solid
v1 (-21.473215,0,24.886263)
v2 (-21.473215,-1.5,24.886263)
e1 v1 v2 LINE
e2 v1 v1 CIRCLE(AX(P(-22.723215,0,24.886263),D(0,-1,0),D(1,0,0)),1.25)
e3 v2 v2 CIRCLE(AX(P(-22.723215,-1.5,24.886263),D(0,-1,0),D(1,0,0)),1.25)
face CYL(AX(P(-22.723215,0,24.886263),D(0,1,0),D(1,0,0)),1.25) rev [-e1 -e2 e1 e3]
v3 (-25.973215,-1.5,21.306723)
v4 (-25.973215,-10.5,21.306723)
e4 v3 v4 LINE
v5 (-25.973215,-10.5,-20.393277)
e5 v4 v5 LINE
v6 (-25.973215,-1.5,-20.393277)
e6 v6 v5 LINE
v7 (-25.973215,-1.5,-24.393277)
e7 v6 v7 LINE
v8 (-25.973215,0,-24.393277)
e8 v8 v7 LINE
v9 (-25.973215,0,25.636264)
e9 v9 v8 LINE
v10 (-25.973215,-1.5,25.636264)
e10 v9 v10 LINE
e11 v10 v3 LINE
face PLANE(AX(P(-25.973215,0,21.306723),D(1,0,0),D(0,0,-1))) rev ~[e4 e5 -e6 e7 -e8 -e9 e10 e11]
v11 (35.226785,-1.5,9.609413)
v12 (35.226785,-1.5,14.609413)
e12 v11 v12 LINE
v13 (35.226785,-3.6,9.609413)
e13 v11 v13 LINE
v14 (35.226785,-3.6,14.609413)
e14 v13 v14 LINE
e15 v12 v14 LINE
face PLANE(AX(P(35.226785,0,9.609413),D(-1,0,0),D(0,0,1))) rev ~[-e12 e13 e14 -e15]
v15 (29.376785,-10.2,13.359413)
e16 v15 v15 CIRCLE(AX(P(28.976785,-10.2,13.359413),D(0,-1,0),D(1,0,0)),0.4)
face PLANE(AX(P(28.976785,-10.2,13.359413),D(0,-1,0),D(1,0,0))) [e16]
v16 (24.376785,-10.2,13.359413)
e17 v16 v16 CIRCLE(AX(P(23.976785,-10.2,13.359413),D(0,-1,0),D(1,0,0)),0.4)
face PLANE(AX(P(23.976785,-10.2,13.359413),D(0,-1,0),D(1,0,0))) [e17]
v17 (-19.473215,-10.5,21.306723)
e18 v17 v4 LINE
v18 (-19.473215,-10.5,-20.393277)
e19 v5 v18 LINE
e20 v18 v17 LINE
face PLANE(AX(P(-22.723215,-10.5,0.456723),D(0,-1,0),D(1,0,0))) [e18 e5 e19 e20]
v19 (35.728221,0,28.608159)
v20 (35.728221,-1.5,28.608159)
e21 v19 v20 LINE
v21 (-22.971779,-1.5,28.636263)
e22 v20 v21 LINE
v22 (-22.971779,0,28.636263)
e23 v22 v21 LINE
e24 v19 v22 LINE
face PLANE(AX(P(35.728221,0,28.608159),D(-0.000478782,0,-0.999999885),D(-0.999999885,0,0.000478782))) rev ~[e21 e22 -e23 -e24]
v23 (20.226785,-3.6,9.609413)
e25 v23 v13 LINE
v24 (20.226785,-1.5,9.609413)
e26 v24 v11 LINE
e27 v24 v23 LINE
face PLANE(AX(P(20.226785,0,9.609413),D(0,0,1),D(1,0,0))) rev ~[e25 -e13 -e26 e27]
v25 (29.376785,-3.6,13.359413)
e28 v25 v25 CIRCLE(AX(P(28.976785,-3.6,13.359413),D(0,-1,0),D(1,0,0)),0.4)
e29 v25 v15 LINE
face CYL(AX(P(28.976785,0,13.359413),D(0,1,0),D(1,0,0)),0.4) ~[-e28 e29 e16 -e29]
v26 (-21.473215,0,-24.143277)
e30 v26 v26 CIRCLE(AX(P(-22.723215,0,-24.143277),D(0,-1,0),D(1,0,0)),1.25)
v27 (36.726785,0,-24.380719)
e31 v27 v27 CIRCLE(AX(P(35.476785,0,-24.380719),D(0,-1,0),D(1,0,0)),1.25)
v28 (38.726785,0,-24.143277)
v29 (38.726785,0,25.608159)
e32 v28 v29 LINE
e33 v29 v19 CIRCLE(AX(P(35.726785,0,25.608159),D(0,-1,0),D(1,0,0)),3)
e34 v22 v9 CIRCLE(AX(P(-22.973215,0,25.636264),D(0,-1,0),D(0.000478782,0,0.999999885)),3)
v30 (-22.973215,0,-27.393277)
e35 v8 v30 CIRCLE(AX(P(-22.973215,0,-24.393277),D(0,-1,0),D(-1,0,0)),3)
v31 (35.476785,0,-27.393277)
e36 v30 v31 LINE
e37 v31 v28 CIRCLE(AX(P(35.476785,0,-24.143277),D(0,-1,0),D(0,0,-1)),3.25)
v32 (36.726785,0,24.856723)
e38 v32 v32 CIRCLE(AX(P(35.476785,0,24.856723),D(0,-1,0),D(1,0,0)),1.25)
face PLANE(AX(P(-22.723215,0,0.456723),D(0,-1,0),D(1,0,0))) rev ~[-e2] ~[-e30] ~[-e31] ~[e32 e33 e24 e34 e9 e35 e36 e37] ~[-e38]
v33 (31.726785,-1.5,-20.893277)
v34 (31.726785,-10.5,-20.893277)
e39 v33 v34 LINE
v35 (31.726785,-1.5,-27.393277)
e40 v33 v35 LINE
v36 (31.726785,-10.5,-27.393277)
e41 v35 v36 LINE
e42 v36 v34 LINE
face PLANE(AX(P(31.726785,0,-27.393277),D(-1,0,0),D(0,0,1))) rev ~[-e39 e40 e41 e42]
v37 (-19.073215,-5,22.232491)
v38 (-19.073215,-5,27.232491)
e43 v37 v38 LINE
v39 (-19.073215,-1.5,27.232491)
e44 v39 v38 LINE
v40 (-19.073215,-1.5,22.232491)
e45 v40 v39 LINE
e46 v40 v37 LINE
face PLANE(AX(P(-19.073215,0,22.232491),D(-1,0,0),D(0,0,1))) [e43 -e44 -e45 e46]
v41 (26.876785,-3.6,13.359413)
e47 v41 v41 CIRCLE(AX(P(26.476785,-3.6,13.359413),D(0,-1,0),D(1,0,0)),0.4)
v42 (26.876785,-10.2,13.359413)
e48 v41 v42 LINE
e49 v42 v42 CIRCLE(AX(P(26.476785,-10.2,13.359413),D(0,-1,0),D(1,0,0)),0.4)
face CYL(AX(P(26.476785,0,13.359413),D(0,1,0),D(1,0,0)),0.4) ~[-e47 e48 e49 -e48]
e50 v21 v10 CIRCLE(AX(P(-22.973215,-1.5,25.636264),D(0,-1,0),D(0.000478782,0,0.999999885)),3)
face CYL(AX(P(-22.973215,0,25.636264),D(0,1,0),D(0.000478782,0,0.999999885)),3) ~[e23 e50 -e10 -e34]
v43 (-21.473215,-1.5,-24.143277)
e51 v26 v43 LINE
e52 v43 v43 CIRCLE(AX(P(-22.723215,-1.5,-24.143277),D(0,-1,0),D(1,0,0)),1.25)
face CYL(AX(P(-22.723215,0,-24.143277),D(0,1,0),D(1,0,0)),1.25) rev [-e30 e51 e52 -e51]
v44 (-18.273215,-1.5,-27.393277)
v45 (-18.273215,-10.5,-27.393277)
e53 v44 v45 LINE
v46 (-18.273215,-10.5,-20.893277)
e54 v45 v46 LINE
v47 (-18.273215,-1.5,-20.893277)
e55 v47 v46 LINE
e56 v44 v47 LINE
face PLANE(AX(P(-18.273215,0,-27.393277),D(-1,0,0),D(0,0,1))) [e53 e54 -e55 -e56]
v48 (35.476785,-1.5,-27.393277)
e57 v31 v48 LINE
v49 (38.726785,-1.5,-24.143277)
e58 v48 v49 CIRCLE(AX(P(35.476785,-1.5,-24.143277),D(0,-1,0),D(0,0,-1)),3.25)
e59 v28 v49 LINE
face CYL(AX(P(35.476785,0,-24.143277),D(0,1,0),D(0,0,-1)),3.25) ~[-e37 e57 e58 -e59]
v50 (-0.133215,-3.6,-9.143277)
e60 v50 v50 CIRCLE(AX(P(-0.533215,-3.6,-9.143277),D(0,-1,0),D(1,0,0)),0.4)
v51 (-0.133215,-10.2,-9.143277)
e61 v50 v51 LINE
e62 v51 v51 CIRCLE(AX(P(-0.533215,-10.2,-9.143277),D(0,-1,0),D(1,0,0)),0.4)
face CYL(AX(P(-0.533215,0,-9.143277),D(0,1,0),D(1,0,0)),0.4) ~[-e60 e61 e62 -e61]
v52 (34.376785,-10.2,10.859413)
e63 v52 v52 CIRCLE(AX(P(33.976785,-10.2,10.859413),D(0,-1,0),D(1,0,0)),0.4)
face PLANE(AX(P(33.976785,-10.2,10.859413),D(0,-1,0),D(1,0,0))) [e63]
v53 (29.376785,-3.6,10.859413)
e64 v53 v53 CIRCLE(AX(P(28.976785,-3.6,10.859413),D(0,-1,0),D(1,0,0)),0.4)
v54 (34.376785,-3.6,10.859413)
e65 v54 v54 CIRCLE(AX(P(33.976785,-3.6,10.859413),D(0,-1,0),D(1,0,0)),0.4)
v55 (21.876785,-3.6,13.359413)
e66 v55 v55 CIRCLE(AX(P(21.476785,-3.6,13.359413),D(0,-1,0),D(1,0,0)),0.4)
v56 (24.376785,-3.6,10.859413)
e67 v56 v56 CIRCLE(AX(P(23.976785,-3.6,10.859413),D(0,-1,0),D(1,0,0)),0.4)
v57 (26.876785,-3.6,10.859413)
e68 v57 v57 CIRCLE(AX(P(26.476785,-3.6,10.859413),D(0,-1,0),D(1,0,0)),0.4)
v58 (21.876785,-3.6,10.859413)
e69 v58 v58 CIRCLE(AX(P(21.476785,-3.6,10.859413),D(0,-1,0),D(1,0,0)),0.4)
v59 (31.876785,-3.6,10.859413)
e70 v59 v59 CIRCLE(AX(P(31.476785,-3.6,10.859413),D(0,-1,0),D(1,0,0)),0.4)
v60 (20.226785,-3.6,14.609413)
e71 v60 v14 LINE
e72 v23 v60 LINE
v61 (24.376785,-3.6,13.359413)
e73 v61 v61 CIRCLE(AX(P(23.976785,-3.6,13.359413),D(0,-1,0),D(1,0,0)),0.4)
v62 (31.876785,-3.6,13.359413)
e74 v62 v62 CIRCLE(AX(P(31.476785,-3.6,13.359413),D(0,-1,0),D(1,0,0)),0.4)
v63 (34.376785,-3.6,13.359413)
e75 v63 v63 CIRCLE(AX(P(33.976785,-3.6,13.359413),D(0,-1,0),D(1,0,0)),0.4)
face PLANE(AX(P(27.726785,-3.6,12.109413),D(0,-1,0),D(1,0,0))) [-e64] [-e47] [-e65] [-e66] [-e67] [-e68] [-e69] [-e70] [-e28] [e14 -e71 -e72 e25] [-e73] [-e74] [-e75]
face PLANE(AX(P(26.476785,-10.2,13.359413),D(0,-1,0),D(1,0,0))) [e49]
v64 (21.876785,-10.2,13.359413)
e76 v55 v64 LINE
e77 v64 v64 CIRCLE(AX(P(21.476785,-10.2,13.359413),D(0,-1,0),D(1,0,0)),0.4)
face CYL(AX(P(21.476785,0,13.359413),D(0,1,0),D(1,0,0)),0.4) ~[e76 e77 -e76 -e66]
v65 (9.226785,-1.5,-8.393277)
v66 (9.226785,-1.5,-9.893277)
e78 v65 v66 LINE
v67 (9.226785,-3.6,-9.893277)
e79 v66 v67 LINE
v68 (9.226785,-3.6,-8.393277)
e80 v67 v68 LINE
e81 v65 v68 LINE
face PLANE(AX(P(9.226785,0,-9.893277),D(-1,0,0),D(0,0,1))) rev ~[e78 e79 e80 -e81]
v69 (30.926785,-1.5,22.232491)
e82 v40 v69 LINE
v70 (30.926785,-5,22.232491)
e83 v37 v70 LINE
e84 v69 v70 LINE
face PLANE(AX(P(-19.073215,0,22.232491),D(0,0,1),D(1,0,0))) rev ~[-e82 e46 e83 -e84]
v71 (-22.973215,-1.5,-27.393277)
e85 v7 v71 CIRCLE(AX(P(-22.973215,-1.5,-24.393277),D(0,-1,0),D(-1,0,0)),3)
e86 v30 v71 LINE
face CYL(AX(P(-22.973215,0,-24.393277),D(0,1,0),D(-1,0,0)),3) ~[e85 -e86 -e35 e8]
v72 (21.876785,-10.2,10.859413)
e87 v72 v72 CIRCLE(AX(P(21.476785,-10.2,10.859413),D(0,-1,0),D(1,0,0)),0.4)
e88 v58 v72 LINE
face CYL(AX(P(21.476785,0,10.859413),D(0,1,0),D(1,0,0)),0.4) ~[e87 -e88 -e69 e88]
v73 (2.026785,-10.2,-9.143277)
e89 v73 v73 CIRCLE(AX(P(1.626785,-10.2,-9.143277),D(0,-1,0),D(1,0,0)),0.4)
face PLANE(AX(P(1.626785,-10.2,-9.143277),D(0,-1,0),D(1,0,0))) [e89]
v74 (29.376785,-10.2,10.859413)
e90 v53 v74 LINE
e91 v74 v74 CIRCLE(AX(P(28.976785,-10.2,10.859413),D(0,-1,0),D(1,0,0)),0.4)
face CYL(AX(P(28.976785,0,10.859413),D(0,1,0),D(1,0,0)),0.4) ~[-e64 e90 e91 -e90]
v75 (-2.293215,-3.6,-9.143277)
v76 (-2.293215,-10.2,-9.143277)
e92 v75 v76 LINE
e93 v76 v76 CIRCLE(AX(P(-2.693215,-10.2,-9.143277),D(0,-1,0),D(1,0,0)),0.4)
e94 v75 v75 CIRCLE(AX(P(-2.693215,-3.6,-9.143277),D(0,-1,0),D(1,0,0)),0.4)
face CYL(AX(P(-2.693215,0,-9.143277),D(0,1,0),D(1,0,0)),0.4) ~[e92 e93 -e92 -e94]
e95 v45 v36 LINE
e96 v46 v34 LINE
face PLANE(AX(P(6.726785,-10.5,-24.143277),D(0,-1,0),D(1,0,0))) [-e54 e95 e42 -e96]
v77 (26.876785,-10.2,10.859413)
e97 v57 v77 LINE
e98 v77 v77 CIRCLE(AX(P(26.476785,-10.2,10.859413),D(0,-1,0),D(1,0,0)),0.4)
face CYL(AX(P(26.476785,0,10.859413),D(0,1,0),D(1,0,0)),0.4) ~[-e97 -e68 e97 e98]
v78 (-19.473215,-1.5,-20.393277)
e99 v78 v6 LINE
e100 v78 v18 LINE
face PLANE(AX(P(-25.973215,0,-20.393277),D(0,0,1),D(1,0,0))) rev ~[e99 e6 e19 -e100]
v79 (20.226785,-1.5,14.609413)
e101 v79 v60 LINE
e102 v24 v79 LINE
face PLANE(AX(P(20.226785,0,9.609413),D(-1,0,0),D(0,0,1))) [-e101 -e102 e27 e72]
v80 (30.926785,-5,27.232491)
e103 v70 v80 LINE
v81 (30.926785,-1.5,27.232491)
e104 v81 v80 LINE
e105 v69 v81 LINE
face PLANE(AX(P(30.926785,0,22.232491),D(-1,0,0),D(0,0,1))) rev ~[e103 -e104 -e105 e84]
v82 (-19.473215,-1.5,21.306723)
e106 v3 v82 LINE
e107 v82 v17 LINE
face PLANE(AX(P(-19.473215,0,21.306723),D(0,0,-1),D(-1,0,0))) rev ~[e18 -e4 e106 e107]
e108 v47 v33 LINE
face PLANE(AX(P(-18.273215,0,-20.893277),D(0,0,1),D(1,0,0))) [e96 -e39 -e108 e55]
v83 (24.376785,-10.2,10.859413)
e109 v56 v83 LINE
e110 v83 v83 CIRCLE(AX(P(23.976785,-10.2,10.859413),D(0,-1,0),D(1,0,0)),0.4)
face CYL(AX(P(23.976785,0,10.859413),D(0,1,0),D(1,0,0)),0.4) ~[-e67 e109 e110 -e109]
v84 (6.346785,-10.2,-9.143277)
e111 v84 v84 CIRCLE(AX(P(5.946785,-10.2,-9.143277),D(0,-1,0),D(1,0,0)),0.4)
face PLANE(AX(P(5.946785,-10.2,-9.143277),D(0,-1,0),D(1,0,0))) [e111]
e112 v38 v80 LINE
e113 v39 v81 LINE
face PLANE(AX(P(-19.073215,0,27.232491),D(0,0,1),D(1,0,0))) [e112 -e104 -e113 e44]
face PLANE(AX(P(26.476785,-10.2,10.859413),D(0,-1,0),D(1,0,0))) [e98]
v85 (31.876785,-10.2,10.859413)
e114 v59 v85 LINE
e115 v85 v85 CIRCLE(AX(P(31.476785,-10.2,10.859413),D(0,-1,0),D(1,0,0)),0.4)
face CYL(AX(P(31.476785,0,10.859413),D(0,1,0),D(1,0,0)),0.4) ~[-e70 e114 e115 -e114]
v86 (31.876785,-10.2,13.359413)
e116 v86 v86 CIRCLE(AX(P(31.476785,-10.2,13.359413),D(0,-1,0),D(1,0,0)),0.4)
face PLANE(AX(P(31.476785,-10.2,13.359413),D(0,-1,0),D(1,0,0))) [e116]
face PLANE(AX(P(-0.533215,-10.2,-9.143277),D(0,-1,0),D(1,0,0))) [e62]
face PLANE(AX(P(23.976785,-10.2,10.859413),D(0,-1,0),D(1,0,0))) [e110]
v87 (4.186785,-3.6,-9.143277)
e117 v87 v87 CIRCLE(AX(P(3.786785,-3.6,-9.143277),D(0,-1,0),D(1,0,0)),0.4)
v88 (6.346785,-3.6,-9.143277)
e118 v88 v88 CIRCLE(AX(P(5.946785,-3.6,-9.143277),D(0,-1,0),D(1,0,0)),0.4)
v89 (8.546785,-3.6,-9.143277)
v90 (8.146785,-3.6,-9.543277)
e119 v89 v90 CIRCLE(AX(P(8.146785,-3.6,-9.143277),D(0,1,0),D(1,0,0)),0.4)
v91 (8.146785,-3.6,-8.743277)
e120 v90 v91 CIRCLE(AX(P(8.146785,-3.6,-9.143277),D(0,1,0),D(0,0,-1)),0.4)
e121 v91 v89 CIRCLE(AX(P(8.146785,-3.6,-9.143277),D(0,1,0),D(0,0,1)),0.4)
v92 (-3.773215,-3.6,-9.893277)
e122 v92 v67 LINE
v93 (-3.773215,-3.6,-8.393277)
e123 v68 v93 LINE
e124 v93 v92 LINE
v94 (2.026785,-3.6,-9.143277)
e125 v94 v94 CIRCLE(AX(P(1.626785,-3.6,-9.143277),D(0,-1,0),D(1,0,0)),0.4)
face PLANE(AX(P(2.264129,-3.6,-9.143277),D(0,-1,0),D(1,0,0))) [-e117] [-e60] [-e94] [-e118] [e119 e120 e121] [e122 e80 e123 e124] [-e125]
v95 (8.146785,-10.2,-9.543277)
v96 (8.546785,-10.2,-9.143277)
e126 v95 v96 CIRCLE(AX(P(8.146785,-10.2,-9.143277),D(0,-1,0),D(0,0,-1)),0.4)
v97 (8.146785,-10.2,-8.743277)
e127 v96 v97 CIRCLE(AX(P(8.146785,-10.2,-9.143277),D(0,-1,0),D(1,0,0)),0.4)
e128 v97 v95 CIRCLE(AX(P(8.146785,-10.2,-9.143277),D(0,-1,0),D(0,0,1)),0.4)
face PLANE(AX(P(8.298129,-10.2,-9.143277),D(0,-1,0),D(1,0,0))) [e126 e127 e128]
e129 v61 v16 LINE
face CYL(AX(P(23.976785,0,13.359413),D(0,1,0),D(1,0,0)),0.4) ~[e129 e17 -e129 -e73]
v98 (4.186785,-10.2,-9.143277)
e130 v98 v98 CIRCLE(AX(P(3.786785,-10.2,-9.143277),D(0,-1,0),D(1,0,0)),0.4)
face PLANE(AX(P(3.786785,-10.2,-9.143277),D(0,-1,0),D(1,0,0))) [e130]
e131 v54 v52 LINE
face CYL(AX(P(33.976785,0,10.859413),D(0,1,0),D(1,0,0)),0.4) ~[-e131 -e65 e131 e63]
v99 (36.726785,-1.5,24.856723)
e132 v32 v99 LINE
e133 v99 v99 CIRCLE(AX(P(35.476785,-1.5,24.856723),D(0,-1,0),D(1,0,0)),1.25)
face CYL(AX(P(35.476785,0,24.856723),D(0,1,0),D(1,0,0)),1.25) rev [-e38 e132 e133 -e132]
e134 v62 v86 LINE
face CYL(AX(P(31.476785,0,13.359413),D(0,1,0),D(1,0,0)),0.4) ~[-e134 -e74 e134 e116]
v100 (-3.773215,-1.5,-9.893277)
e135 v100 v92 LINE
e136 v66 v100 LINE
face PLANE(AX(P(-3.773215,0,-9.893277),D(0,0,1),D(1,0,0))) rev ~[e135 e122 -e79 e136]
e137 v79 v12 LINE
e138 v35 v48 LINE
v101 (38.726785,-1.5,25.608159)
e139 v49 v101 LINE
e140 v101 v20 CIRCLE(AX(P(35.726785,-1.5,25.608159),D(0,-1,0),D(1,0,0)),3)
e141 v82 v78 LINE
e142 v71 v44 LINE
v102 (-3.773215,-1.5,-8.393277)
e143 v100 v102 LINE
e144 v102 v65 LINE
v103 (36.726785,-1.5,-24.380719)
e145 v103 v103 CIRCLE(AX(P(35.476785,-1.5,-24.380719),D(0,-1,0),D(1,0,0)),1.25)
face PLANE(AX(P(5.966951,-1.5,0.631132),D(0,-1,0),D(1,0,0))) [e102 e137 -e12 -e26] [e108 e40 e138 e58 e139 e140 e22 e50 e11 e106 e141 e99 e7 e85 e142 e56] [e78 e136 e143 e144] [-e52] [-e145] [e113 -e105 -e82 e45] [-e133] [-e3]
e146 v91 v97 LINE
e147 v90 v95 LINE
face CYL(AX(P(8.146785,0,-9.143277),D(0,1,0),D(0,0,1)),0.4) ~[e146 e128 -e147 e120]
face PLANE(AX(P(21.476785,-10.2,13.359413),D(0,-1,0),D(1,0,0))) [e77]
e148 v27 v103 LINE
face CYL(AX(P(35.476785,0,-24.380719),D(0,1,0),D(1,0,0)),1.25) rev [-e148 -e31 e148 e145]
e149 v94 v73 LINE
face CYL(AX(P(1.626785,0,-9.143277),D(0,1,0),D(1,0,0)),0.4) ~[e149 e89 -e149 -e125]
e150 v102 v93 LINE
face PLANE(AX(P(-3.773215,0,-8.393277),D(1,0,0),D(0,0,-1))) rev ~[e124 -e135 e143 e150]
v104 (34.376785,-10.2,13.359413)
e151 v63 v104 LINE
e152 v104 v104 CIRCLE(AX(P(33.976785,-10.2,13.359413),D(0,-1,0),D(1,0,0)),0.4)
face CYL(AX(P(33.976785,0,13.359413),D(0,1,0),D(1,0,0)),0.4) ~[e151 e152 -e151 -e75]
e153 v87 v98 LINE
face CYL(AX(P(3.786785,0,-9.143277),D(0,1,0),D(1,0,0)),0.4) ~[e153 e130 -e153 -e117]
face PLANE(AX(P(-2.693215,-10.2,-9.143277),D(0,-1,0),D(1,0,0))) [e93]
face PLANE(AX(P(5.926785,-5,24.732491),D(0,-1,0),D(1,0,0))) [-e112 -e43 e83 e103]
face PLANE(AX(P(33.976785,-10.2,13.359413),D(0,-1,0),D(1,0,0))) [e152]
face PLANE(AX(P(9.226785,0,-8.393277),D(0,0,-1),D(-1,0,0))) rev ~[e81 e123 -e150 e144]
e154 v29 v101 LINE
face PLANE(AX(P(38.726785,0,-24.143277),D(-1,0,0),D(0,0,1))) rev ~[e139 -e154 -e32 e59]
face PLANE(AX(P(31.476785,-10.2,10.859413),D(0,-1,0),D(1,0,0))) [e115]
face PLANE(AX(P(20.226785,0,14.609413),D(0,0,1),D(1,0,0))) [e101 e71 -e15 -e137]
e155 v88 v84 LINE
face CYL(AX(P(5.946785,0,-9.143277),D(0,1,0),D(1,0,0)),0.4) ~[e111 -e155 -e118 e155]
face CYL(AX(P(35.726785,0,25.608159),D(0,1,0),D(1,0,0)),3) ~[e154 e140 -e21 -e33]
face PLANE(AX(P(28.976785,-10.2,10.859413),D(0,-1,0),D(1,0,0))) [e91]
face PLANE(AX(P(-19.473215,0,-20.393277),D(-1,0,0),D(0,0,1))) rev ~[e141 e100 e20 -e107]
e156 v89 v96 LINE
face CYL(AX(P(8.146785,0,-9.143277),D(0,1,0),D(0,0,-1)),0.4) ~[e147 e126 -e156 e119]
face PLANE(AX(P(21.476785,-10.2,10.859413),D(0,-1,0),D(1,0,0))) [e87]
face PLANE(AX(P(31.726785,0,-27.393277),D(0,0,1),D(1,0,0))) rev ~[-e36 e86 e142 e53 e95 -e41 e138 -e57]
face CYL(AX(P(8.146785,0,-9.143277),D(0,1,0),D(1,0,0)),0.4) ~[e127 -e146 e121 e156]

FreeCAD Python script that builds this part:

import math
import FreeCAD as App
import Part
import Sketcher
Q = App.Units.Quantity

doc = App.newDocument("Part")
body = doc.addObject("PartDesign::Body", "Body")

# Sketch on XZ plane
sketch1 = doc.addObject("Sketcher::SketchObject", "Sketch")
body.addObject(sketch1)
sketch1.AttachmentSupport = (doc.XZ_Plane, [""])
sketch1.MapMode = "FlatFace"
sketch1.addGeometry([
    Part.ArcOfCircle(Part.Circle(App.Vector(35.7, 25.6, 0), App.Vector(0, 0, 1), 3), math.radians(0), math.radians(90)),  # 0
    Part.LineSegment(App.Vector(35.7, 28.6, 0), App.Vector(-23, 28.6, 0)),  # 1
    Part.ArcOfCircle(Part.Circle(App.Vector(-23, 25.6, 0), App.Vector(0, 0, 1), 3), math.radians(90), math.radians(180)),  # 2
    Part.LineSegment(App.Vector(-26, 25.6, 0), App.Vector(-26, 21.3, 0)),  # 3
    Part.LineSegment(App.Vector(-26, 21.3, 0), App.Vector(-19.5, 21.3, 0)),  # 4
    Part.LineSegment(App.Vector(-19.5, 21.3, 0), App.Vector(-19.5, -20.4, 0)),  # 5
    Part.LineSegment(App.Vector(-19.5, -20.4, 0), App.Vector(-26, -20.4, 0)),  # 6
    Part.LineSegment(App.Vector(-26, -20.4, 0), App.Vector(-26, -24.4, 0)),  # 7
    Part.ArcOfCircle(Part.Circle(App.Vector(-23, -24.4, 0), App.Vector(0, 0, 1), 3), math.radians(180), math.radians(270)),  # 8
    Part.LineSegment(App.Vector(-23, -27.4, 0), App.Vector(-18.3, -27.4, 0)),  # 9
    Part.LineSegment(App.Vector(-18.3, -27.4, 0), App.Vector(-18.3, -20.9, 0)),  # 10
    Part.LineSegment(App.Vector(-18.3, -20.9, 0), App.Vector(31.7, -20.9, 0)),  # 11
    Part.LineSegment(App.Vector(31.7, -20.9, 0), App.Vector(31.7, -27.4, 0)),  # 12
    Part.LineSegment(App.Vector(31.7, -27.4, 0), App.Vector(35.5, -27.4, 0)),  # 13
    Part.ArcOfCircle(Part.Circle(App.Vector(35.5, -24.1, 0), App.Vector(0, 0, 1), 3.2), math.radians(-90), math.radians(0)),  # 14
    Part.LineSegment(App.Vector(38.7, -24.1, 0), App.Vector(38.7, 25.6, 0)),  # 15
    Part.Circle(App.Vector(-22.7, -24.1, 0), App.Vector(0, 0, 1), 1.2),  # 16
    Part.LineSegment(App.Vector(9.2, -9.9, 0), App.Vector(-3.8, -9.9, 0)),  # 17
    Part.LineSegment(App.Vector(-3.8, -9.9, 0), App.Vector(-3.8, -8.4, 0)),  # 18
    Part.LineSegment(App.Vector(-3.8, -8.4, 0), App.Vector(9.2, -8.4, 0)),  # 19
    Part.LineSegment(App.Vector(9.2, -8.4, 0), App.Vector(9.2, -9.9, 0)),  # 20
    Part.Circle(App.Vector(35.5, -24.4, 0), App.Vector(0, 0, 1), 1.2),  # 21
    Part.Circle(App.Vector(-22.7, 24.9, 0), App.Vector(0, 0, 1), 1.2),  # 22
    Part.LineSegment(App.Vector(30.9, 22.2, 0), App.Vector(-19.1, 22.2, 0)),  # 23
    Part.LineSegment(App.Vector(-19.1, 22.2, 0), App.Vector(-19.1, 27.2, 0)),  # 24
    Part.LineSegment(App.Vector(-19.1, 27.2, 0), App.Vector(30.9, 27.2, 0)),  # 25
    Part.LineSegment(App.Vector(30.9, 27.2, 0), App.Vector(30.9, 22.2, 0)),  # 26
    Part.LineSegment(App.Vector(35.2, 9.6, 0), App.Vector(20.2, 9.6, 0)),  # 27
    Part.LineSegment(App.Vector(20.2, 9.6, 0), App.Vector(20.2, 14.6, 0)),  # 28
    Part.LineSegment(App.Vector(20.2, 14.6, 0), App.Vector(35.2, 14.6, 0)),  # 29
    Part.LineSegment(App.Vector(35.2, 14.6, 0), App.Vector(35.2, 9.6, 0)),  # 30
    Part.Circle(App.Vector(35.5, 24.9, 0), App.Vector(0, 0, 1), 1.2),  # 31
], False)
sketch1.addConstraint([
    Sketcher.Constraint("Tangent", 0, 2, 1, 1),
    Sketcher.Constraint("Tangent", 1, 2, 2, 1),
    Sketcher.Constraint("Tangent", 2, 2, 3, 1),
    Sketcher.Constraint("Coincident", 3, 2, 4, 1),
    Sketcher.Constraint("Coincident", 4, 2, 5, 1),
    Sketcher.Constraint("Coincident", 5, 2, 6, 1),
    Sketcher.Constraint("Coincident", 6, 2, 7, 1),
    Sketcher.Constraint("Tangent", 7, 2, 8, 1),
    Sketcher.Constraint("Tangent", 8, 2, 9, 1),
    Sketcher.Constraint("Coincident", 9, 2, 10, 1),
    Sketcher.Constraint("Coincident", 10, 2, 11, 1),
    Sketcher.Constraint("Coincident", 11, 2, 12, 1),
    Sketcher.Constraint("Coincident", 12, 2, 13, 1),
    Sketcher.Constraint("Tangent", 13, 2, 14, 1),
    Sketcher.Constraint("Tangent", 14, 2, 15, 1),
    Sketcher.Constraint("Tangent", 15, 2, 0, 1),
    Sketcher.Constraint("Coincident", 17, 2, 18, 1),
    Sketcher.Constraint("Coincident", 18, 2, 19, 1),
    Sketcher.Constraint("Coincident", 19, 2, 20, 1),
    Sketcher.Constraint("Coincident", 20, 2, 17, 1),
    Sketcher.Constraint("Coincident", 23, 2, 24, 1),
    Sketcher.Constraint("Coincident", 24, 2, 25, 1),
    Sketcher.Constraint("Coincident", 25, 2, 26, 1),
    Sketcher.Constraint("Coincident", 26, 2, 23, 1),
    Sketcher.Constraint("Coincident", 27, 2, 28, 1),
    Sketcher.Constraint("Coincident", 28, 2, 29, 1),
    Sketcher.Constraint("Coincident", 29, 2, 30, 1),
    Sketcher.Constraint("Coincident", 30, 2, 27, 1),
    Sketcher.Constraint("Vertical", 3),
    Sketcher.Constraint("Horizontal", 4),
    Sketcher.Constraint("Vertical", 5),
    Sketcher.Constraint("Horizontal", 6),
    Sketcher.Constraint("Vertical", 7),
    Sketcher.Constraint("Horizontal", 9),
    Sketcher.Constraint("Vertical", 10),
    Sketcher.Constraint("Horizontal", 11),
    Sketcher.Constraint("Vertical", 12),
    Sketcher.Constraint("Horizontal", 13),
    Sketcher.Constraint("Vertical", 15),
    Sketcher.Constraint("Horizontal", 17),
    Sketcher.Constraint("Vertical", 18),
    Sketcher.Constraint("Horizontal", 19),
    Sketcher.Constraint("Vertical", 20),
    Sketcher.Constraint("Horizontal", 23),
    Sketcher.Constraint("Vertical", 24),
    Sketcher.Constraint("Horizontal", 25),
    Sketcher.Constraint("Vertical", 26),
    Sketcher.Constraint("Horizontal", 27),
    Sketcher.Constraint("Vertical", 28),
    Sketcher.Constraint("Horizontal", 29),
    Sketcher.Constraint("Vertical", 30),
    Sketcher.Constraint("Equal", 0, 2),
    Sketcher.Constraint("Equal", 2, 8),
    Sketcher.Constraint("Equal", 16, 21),
    Sketcher.Constraint("Equal", 21, 22),
    Sketcher.Constraint("Equal", 22, 31),
    Sketcher.Constraint("Horizontal", 14, 3, 16, 3),
    Sketcher.Constraint("Horizontal", 9, 2, 12, 2),
    Sketcher.Constraint("Vertical", 2, 3, 8, 3),
    Sketcher.Constraint("Vertical", 14, 3, 21, 3),
    Sketcher.Constraint("Vertical", 16, 3, 22, 3),
    Sketcher.Constraint("Vertical", 21, 3, 31, 3),
    Sketcher.Constraint("Equal", 11, 23),
    Sketcher.Constraint("Equal", 6, 10),
    Sketcher.Constraint("Equal", 26, 28),
    Sketcher.Constraint("Radius", 0, Q("3 mm")),
    Sketcher.Constraint("Diameter", 16, Q("2.5 mm")),
    Sketcher.Constraint("DistanceX", 11, 1, 11, 2, Q("50 mm")),
    Sketcher.Constraint("DistanceX", 17, 2, 17, 1, Q("13 mm")),
    Sketcher.Constraint("DistanceX", 27, 2, 27, 1, Q("15 mm")),
    Sketcher.Constraint("DistanceY", 7, 2, 7, 1, Q("4 mm")),
    Sketcher.Constraint("DistanceY", 24, 1, 24, 2, Q("5 mm")),
    Sketcher.Constraint("Radius", 14, Q("3.25 mm")),
    Sketcher.Constraint("DistanceX", 4, 1, 4, 2, Q("6.5 mm")),
    Sketcher.Constraint("DistanceX", 9, 1, 9, 2, Q("4.7 mm")),
    Sketcher.Constraint("DistanceY", 5, 2, 5, 1, Q("41.7 mm")),
    Sketcher.Constraint("DistanceY", 18, 1, 18, 2, Q("1.5 mm")),
    Sketcher.Constraint("DistanceY", 14, 3, 31, 3, Q("49 mm")),
    Sketcher.Constraint("DistanceX", 11, 2, 0, 3, Q("4 mm")),
    Sketcher.Constraint("DistanceY", 10, 2, 17, 2, Q("11 mm")),
    Sketcher.Constraint("DistanceX", 19, 2, 27, 2, Q("11 mm")),
    Sketcher.Constraint("DistanceX", 16, 3, 14, 3, Q("58.2 mm")),
    Sketcher.Constraint("DistanceX", 10, 2, 17, 2, Q("14.5 mm")),
    Sketcher.Constraint("DistanceX", 4, 2, 23, 2, Q("0.4 mm")),
    Sketcher.Constraint("DistanceY", 22, 3, 2, 3, Q("0.75 mm")),
    Sketcher.Constraint("DistanceY", 3, 2, 3, 1, Q("4.32954 mm")),
    Sketcher.Constraint("DistanceY", 15, 1, 15, 2, Q("49.751436 mm")),
    Sketcher.Constraint("DistanceY", -1, 1, 0, 3, Q("25.608159 mm")),
    Sketcher.Constraint("DistanceY", 21, 3, -1, 1, Q("24.380719 mm")),
    Sketcher.Constraint("DistanceX", -1, 1, 0, 2, Q("35.728221 mm")),
    Sketcher.Constraint("DistanceY", -1, 1, 23, 2, Q("22.232491 mm")),
    Sketcher.Constraint("DistanceY", 19, 2, 27, 2, Q("18.00269 mm")),
])
pad1 = doc.addObject("PartDesign::Pad", "Pad")
body.addObject(pad1)
pad1.Profile = sketch1
pad1.Length = 1.5

# Sketch on XZ plane
sketch2 = doc.addObject("Sketcher::SketchObject", "Sketch001")
body.addObject(sketch2)
sketch2.AttachmentSupport = (doc.XZ_Plane, [""])
sketch2.MapMode = "FlatFace"
sketch2.addGeometry([
    Part.LineSegment(App.Vector(-19, 21, 0), App.Vector(-26, 21, 0)),  # 0
    Part.LineSegment(App.Vector(-26, 21, 0), App.Vector(-26, -20, 0)),  # 1
    Part.LineSegment(App.Vector(-26, -20, 0), App.Vector(-19, -20, 0)),  # 2
    Part.LineSegment(App.Vector(-19, -20, 0), App.Vector(-19, 21, 0)),  # 3
    Part.LineSegment(App.Vector(-18, -21, 0), App.Vector(-18, -27, 0)),  # 4
    Part.LineSegment(App.Vector(-18, -27, 0), App.Vector(32, -27, 0)),  # 5
    Part.LineSegment(App.Vector(32, -27, 0), App.Vector(32, -21, 0)),  # 6
    Part.LineSegment(App.Vector(32, -21, 0), App.Vector(-18, -21, 0)),  # 7
], False)
sketch2.addConstraint([
    Sketcher.Constraint("Coincident", 0, 2, 1, 1),
    Sketcher.Constraint("Coincident", 1, 2, 2, 1),
    Sketcher.Constraint("Coincident", 2, 2, 3, 1),
    Sketcher.Constraint("Coincident", 3, 2, 0, 1),
    Sketcher.Constraint("Coincident", 4, 2, 5, 1),
    Sketcher.Constraint("Coincident", 5, 2, 6, 1),
    Sketcher.Constraint("Coincident", 6, 2, 7, 1),
    Sketcher.Constraint("Coincident", 7, 2, 4, 1),
    Sketcher.Constraint("Horizontal", 0),
    Sketcher.Constraint("Vertical", 1),
    Sketcher.Constraint("Horizontal", 2),
    Sketcher.Constraint("Vertical", 3),
    Sketcher.Constraint("Vertical", 4),
    Sketcher.Constraint("Horizontal", 5),
    Sketcher.Constraint("Vertical", 6),
    Sketcher.Constraint("Horizontal", 7),
    Sketcher.Constraint("Equal", 2, 4),
    Sketcher.Constraint("DistanceX", 5, 1, 5, 2, Q("50 mm")),
    Sketcher.Constraint("DistanceX", 0, 2, 0, 1, Q("6.5 mm")),
    Sketcher.Constraint("DistanceY", 1, 2, 1, 1, Q("41.7 mm")),
    Sketcher.Constraint("DistanceY", 4, 2, 2, 2, Q("7 mm")),
    Sketcher.Constraint("DistanceX", 2, 2, 4, 2, Q("1.2 mm")),
    Sketcher.Constraint("DistanceX", 0, 2, -1, 1, Q("25.973215 mm")),
    Sketcher.Constraint("DistanceY", -1, 1, 0, 2, Q("21.306723 mm")),
])
pad2 = doc.addObject("PartDesign::Pad", "Pad001")
body.addObject(pad2)
pad2.Profile = sketch2
pad2.Length = 10.5

# Sketch on XZ plane
sketch3 = doc.addObject("Sketcher::SketchObject", "Sketch002")
body.addObject(sketch3)
sketch3.AttachmentSupport = (doc.XZ_Plane, [""])
sketch3.MapMode = "FlatFace"
sketch3.addGeometry([
    Part.LineSegment(App.Vector(-3.77, -8.39, 0), App.Vector(-3.77, -9.89, 0)),  # 0
    Part.LineSegment(App.Vector(-3.77, -9.89, 0), App.Vector(9.23, -9.89, 0)),  # 1
    Part.LineSegment(App.Vector(9.23, -9.89, 0), App.Vector(9.23, -8.39, 0)),  # 2
    Part.LineSegment(App.Vector(9.23, -8.39, 0), App.Vector(-3.77, -8.39, 0)),  # 3
    Part.ArcOfCircle(Part.Circle(App.Vector(8.15, -9.14, 0), App.Vector(0, 0, 1), 0.4), math.radians(90), math.radians(270)),  # 4
    Part.ArcOfCircle(Part.Circle(App.Vector(8.15, -9.14, 0), App.Vector(0, 0, 1), 0.4), math.radians(0), math.radians(90)),  # 5
    Part.ArcOfCircle(Part.Circle(App.Vector(8.15, -9.14, 0), App.Vector(0, 0, 1), 0.4), math.radians(-90), math.radians(0)),  # 6
    Part.Circle(App.Vector(-2.69, -9.14, 0), App.Vector(0, 0, 1), 0.4),  # 7
    Part.Circle(App.Vector(-0.53, -9.14, 0), App.Vector(0, 0, 1), 0.4),  # 8
    Part.Circle(App.Vector(1.63, -9.14, 0), App.Vector(0, 0, 1), 0.4),  # 9
    Part.Circle(App.Vector(3.79, -9.14, 0), App.Vector(0, 0, 1), 0.4),  # 10
    Part.Circle(App.Vector(5.95, -9.14, 0), App.Vector(0, 0, 1), 0.4),  # 11
    Part.LineSegment(App.Vector(20.23, 14.61, 0), App.Vector(20.23, 9.61, 0)),  # 12
    Part.LineSegment(App.Vector(20.23, 9.61, 0), App.Vector(35.23, 9.61, 0)),  # 13
    Part.LineSegment(App.Vector(35.23, 9.61, 0), App.Vector(35.23, 14.61, 0)),  # 14
    Part.LineSegment(App.Vector(35.23, 14.61, 0), App.Vector(20.23, 14.61, 0)),  # 15
    Part.Circle(App.Vector(21.48, 10.86, 0), App.Vector(0, 0, 1), 0.4),  # 16
    Part.Circle(App.Vector(23.98, 10.86, 0), App.Vector(0, 0, 1), 0.4),  # 17
    Part.Circle(App.Vector(26.48, 10.86, 0), App.Vector(0, 0, 1), 0.4),  # 18
    Part.Circle(App.Vector(28.98, 10.86, 0), App.Vector(0, 0, 1), 0.4),  # 19
    Part.Circle(App.Vector(31.48, 10.86, 0), App.Vector(0, 0, 1), 0.4),  # 20
    Part.Circle(App.Vector(33.98, 10.86, 0), App.Vector(0, 0, 1), 0.4),  # 21
    Part.Circle(App.Vector(21.48, 13.36, 0), App.Vector(0, 0, 1), 0.4),  # 22
    Part.Circle(App.Vector(23.98, 13.36, 0), App.Vector(0, 0, 1), 0.4),  # 23
    Part.Circle(App.Vector(26.48, 13.36, 0), App.Vector(0, 0, 1), 0.4),  # 24
    Part.Circle(App.Vector(28.98, 13.36, 0), App.Vector(0, 0, 1), 0.4),  # 25
    Part.Circle(App.Vector(31.48, 13.36, 0), App.Vector(0, 0, 1), 0.4),  # 26
    Part.Circle(App.Vector(33.98, 13.36, 0), App.Vector(0, 0, 1), 0.4),  # 27
], False)
sketch3.addConstraint([
    Sketcher.Constraint("Coincident", 0, 2, 1, 1),
    Sketcher.Constraint("Coincident", 1, 2, 2, 1),
    Sketcher.Constraint("Coincident", 2, 2, 3, 1),
    Sketcher.Constraint("Coincident", 3, 2, 0, 1),
    Sketcher.Constraint("Tangent", 4, 1, 5, 2),
    Sketcher.Constraint("Tangent", 5, 1, 6, 2),
    Sketcher.Constraint("Tangent", 6, 1, 4, 2),
    Sketcher.Constraint("Coincident", 12, 2, 13, 1),
    Sketcher.Constraint("Coincident", 13, 2, 14, 1),
    Sketcher.Constraint("Coincident", 14, 2, 15, 1),
    Sketcher.Constraint("Coincident", 15, 2, 12, 1),
    Sketcher.Constraint("Vertical", 0),
    Sketcher.Constraint("Horizontal", 1),
    Sketcher.Constraint("Vertical", 2),
    Sketcher.Constraint("Horizontal", 3),
    Sketcher.Constraint("Vertical", 12),
    Sketcher.Constraint("Horizontal", 13),
    Sketcher.Constraint("Vertical", 14),
    Sketcher.Constraint("Horizontal", 15),
    Sketcher.Constraint("Equal", 6, 7),
    Sketcher.Constraint("Equal", 7, 8),
    Sketcher.Constraint("Equal", 8, 9),
    Sketcher.Constraint("Equal", 9, 10),
    Sketcher.Constraint("Equal", 10, 11),
    Sketcher.Constraint("Equal", 11, 16),
    Sketcher.Constraint("Equal", 16, 17),
    Sketcher.Constraint("Equal", 17, 18),
    Sketcher.Constraint("Equal", 18, 19),
    Sketcher.Constraint("Equal", 19, 20),
    Sketcher.Constraint("Equal", 20, 21),
    Sketcher.Constraint("Equal", 21, 22),
    Sketcher.Constraint("Equal", 22, 23),
    Sketcher.Constraint("Equal", 23, 24),
    Sketcher.Constraint("Equal", 24, 25),
    Sketcher.Constraint("Equal", 25, 26),
    Sketcher.Constraint("Equal", 26, 27),
    Sketcher.Constraint("Horizontal", 6, 3, 7, 3),
    Sketcher.Constraint("Horizontal", 7, 3, 8, 3),
    Sketcher.Constraint("Horizontal", 8, 3, 9, 3),
    Sketcher.Constraint("Horizontal", 9, 3, 10, 3),
    Sketcher.Constraint("Horizontal", 10, 3, 11, 3),
    Sketcher.Constraint("Horizontal", 16, 3, 17, 3),
    Sketcher.Constraint("Horizontal", 17, 3, 18, 3),
    Sketcher.Constraint("Horizontal", 18, 3, 19, 3),
    Sketcher.Constraint("Horizontal", 19, 3, 20, 3),
    Sketcher.Constraint("Horizontal", 20, 3, 21, 3),
    Sketcher.Constraint("Horizontal", 22, 3, 23, 3),
    Sketcher.Constraint("Horizontal", 23, 3, 24, 3),
    Sketcher.Constraint("Horizontal", 24, 3, 25, 3),
    Sketcher.Constraint("Horizontal", 25, 3, 26, 3),
    Sketcher.Constraint("Horizontal", 26, 3, 27, 3),
    Sketcher.Constraint("Horizontal", 11, 3, 5, 1),
    Sketcher.Constraint("Vertical", 16, 3, 22, 3),
    Sketcher.Constraint("Vertical", 17, 3, 23, 3),
    Sketcher.Constraint("Vertical", 18, 3, 24, 3),
    Sketcher.Constraint("Vertical", 19, 3, 25, 3),
    Sketcher.Constraint("Vertical", 20, 3, 26, 3),
    Sketcher.Constraint("Vertical", 21, 3, 27, 3),
    Sketcher.Constraint("Vertical", 6, 3, 4, 1),
    Sketcher.Constraint("Vertical", 4, 1, 6, 1),
    Sketcher.Constraint("Diameter", 7, Q("0.8 mm")),
    Sketcher.Constraint("DistanceX", 1, 1, 1, 2, Q("13 mm")),
    Sketcher.Constraint("DistanceX", 13, 1, 13, 2, Q("15 mm")),
    Sketcher.Constraint("DistanceY", 12, 2, 12, 1, Q("5 mm")),
    Sketcher.Constraint("DistanceY", 0, 2, 0, 1, Q("1.5 mm")),
    Sketcher.Constraint("DistanceX", 16, 3, 18, 3, Q("5 mm")),
    Sketcher.Constraint("DistanceX", 17, 3, 19, 3, Q("5 mm")),
    Sketcher.Constraint("DistanceX", 18, 3, 20, 3, Q("5 mm")),
    Sketcher.Constraint("DistanceX", 19, 3, 21, 3, Q("5 mm")),
    Sketcher.Constraint("DistanceX", 11, 3, 4, 3, Q("2.2 mm")),
    Sketcher.Constraint("DistanceX", 16, 3, 17, 3, Q("2.5 mm")),
    Sketcher.Constraint("DistanceY", 16, 3, 22, 3, Q("2.5 mm")),
    Sketcher.Constraint("DistanceX", 0, 2, 9, 3, Q("5.4 mm")),
    Sketcher.Constraint("DistanceX", 7, 3, 4, 3, Q("10.84 mm")),
    Sketcher.Constraint("DistanceX", 7, 3, 8, 3, Q("2.16 mm")),
    Sketcher.Constraint("DistanceX", 8, 3, 9, 3, Q("2.16 mm")),
    Sketcher.Constraint("DistanceX", 9, 3, 10, 3, Q("2.16 mm")),
    Sketcher.Constraint("DistanceX", 5, 3, 16, 3, Q("13.33 mm")),
    Sketcher.Constraint("DistanceY", 0, 2, 7, 3, Q("0.75 mm")),
    Sketcher.Constraint("DistanceX", 12, 2, 16, 3, Q("1.25 mm")),
    Sketcher.Constraint("DistanceY", 12, 2, 16, 3, Q("1.25 mm")),
    Sketcher.Constraint("DistanceY", 5, 3, 16, 3, Q("20.00269 mm")),
    Sketcher.Constraint("DistanceX", -1, 1, 4, 3, Q("8.146785 mm")),
    Sketcher.Constraint("DistanceY", 4, 3, -1, 1, Q("9.143277 mm")),
])
pad3 = doc.addObject("PartDesign::Pad", "Pad002")
body.addObject(pad3)
pad3.Profile = sketch3
pad3.Length = 3.6

# Sketch on XZ plane
sketch4 = doc.addObject("Sketcher::SketchObject", "Sketch003")
body.addObject(sketch4)
sketch4.AttachmentSupport = (doc.XZ_Plane, [""])
sketch4.MapMode = "FlatFace"
sketch4.addGeometry([
    Part.Circle(App.Vector(21.48, 13.36, 0), App.Vector(0, 0, 1), 0.4),  # 0
    Part.Circle(App.Vector(23.98, 13.36, 0), App.Vector(0, 0, 1), 0.4),  # 1
    Part.Circle(App.Vector(26.48, 13.36, 0), App.Vector(0, 0, 1), 0.4),  # 2
    Part.Circle(App.Vector(28.98, 13.36, 0), App.Vector(0, 0, 1), 0.4),  # 3
    Part.Circle(App.Vector(31.48, 13.36, 0), App.Vector(0, 0, 1), 0.4),  # 4
    Part.Circle(App.Vector(33.98, 13.36, 0), App.Vector(0, 0, 1), 0.4),  # 5
    Part.Circle(App.Vector(21.48, 10.86, 0), App.Vector(0, 0, 1), 0.4),  # 6
    Part.Circle(App.Vector(23.98, 10.86, 0), App.Vector(0, 0, 1), 0.4),  # 7
    Part.Circle(App.Vector(26.48, 10.86, 0), App.Vector(0, 0, 1), 0.4),  # 8
    Part.Circle(App.Vector(28.98, 10.86, 0), App.Vector(0, 0, 1), 0.4),  # 9
    Part.Circle(App.Vector(31.48, 10.86, 0), App.Vector(0, 0, 1), 0.4),  # 10
    Part.Circle(App.Vector(33.98, 10.86, 0), App.Vector(0, 0, 1), 0.4),  # 11
    Part.Circle(App.Vector(-2.69, -9.14, 0), App.Vector(0, 0, 1), 0.4),  # 12
    Part.Circle(App.Vector(-0.53, -9.14, 0), App.Vector(0, 0, 1), 0.4),  # 13
    Part.Circle(App.Vector(1.63, -9.14, 0), App.Vector(0, 0, 1), 0.4),  # 14
    Part.Circle(App.Vector(3.79, -9.14, 0), App.Vector(0, 0, 1), 0.4),  # 15
    Part.Circle(App.Vector(5.95, -9.14, 0), App.Vector(0, 0, 1), 0.4),  # 16
    Part.ArcOfCircle(Part.Circle(App.Vector(8.15, -9.14, 0), App.Vector(0, 0, 1), 0.4), math.radians(0), math.radians(90)),  # 17
    Part.ArcOfCircle(Part.Circle(App.Vector(8.15, -9.14, 0), App.Vector(0, 0, 1), 0.4), math.radians(90), math.radians(270)),  # 18
    Part.ArcOfCircle(Part.Circle(App.Vector(8.15, -9.14, 0), App.Vector(0, 0, 1), 0.4), math.radians(-90), math.radians(0)),  # 19
], False)
sketch4.addConstraint([
    Sketcher.Constraint("Tangent", 17, 2, 18, 1),
    Sketcher.Constraint("Tangent", 18, 2, 19, 1),
    Sketcher.Constraint("Tangent", 19, 2, 17, 1),
    Sketcher.Constraint("Equal", 0, 1),
    Sketcher.Constraint("Equal", 1, 2),
    Sketcher.Constraint("Equal", 2, 3),
    Sketcher.Constraint("Equal", 3, 4),
    Sketcher.Constraint("Equal", 4, 5),
    Sketcher.Constraint("Equal", 5, 6),
    Sketcher.Constraint("Equal", 6, 7),
    Sketcher.Constraint("Equal", 7, 8),
    Sketcher.Constraint("Equal", 8, 9),
    Sketcher.Constraint("Equal", 9, 10),
    Sketcher.Constraint("Equal", 10, 11),
    Sketcher.Constraint("Equal", 11, 12),
    Sketcher.Constraint("Equal", 12, 13),
    Sketcher.Constraint("Equal", 13, 14),
    Sketcher.Constraint("Equal", 14, 15),
    Sketcher.Constraint("Equal", 15, 16),
    Sketcher.Constraint("Equal", 16, 17),
    Sketcher.Constraint("Horizontal", 0, 3, 1, 3),
    Sketcher.Constraint("Horizontal", 1, 3, 2, 3),
    Sketcher.Constraint("Horizontal", 2, 3, 3, 3),
    Sketcher.Constraint("Horizontal", 3, 3, 4, 3),
    Sketcher.Constraint("Horizontal", 4, 3, 5, 3),
    Sketcher.Constraint("Horizontal", 6, 3, 7, 3),
    Sketcher.Constraint("Horizontal", 7, 3, 8, 3),
    Sketcher.Constraint("Horizontal", 8, 3, 9, 3),
    Sketcher.Constraint("Horizontal", 9, 3, 10, 3),
    Sketcher.Constraint("Horizontal", 10, 3, 11, 3),
    Sketcher.Constraint("Horizontal", 12, 3, 13, 3),
    Sketcher.Constraint("Horizontal", 13, 3, 14, 3),
    Sketcher.Constraint("Horizontal", 14, 3, 15, 3),
    Sketcher.Constraint("Horizontal", 15, 3, 16, 3),
    Sketcher.Constraint("Horizontal", 16, 3, 17, 3),
    Sketcher.Constraint("Horizontal", 18, 3, 19, 2),
    Sketcher.Constraint("Vertical", 0, 3, 6, 3),
    Sketcher.Constraint("Vertical", 1, 3, 7, 3),
    Sketcher.Constraint("Vertical", 2, 3, 8, 3),
    Sketcher.Constraint("Vertical", 3, 3, 9, 3),
    Sketcher.Constraint("Vertical", 4, 3, 10, 3),
    Sketcher.Constraint("Vertical", 5, 3, 11, 3),
    Sketcher.Constraint("Vertical", 19, 3, 17, 2),
    Sketcher.Constraint("Vertical", 17, 2, 18, 2),
    Sketcher.Constraint("Diameter", 0, Q("0.8 mm")),
    Sketcher.Constraint("DistanceX", 0, 3, 2, 3, Q("5 mm")),
    Sketcher.Constraint("DistanceX", 1, 3, 3, 3, Q("5 mm")),
    Sketcher.Constraint("DistanceX", 2, 3, 4, 3, Q("5 mm")),
    Sketcher.Constraint("DistanceX", 3, 3, 5, 3, Q("5 mm")),
    Sketcher.Constraint("DistanceX", 0, 3, 1, 3, Q("2.5 mm")),
    Sketcher.Constraint("DistanceY", 6, 3, 0, 3, Q("2.5 mm")),
    Sketcher.Constraint("DistanceX", 16, 3, 17, 3, Q("2.2 mm")),
    Sketcher.Constraint("DistanceX", 12, 3, 6, 3, Q("24.17 mm")),
    Sketcher.Constraint("DistanceX", 12, 3, 13, 3, Q("2.16 mm")),
    Sketcher.Constraint("DistanceX", 13, 3, 14, 3, Q("2.16 mm")),
    Sketcher.Constraint("DistanceX", 14, 3, 15, 3, Q("2.16 mm")),
    Sketcher.Constraint("DistanceX", 15, 3, 16, 3, Q("2.16 mm")),
    Sketcher.Constraint("DistanceY", 12, 3, 6, 3, Q("20.00269 mm")),
    Sketcher.Constraint("DistanceX", -1, 1, 0, 3, Q("21.476785 mm")),
    Sketcher.Constraint("DistanceY", -1, 1, 0, 3, Q("13.359413 mm")),
])
pad4 = doc.addObject("PartDesign::Pad", "Pad003")
body.addObject(pad4)
pad4.Profile = sketch4
pad4.Length = 10.2

# Sketch on XZ plane
sketch5 = doc.addObject("Sketcher::SketchObject", "Sketch004")
body.addObject(sketch5)
sketch5.AttachmentSupport = (doc.XZ_Plane, [""])
sketch5.MapMode = "FlatFace"
sketch5.addGeometry([
    Part.LineSegment(App.Vector(-19, 27, 0), App.Vector(-19, 22, 0)),
    Part.LineSegment(App.Vector(-19, 22, 0), App.Vector(31, 22, 0)),
    Part.LineSegment(App.Vector(31, 22, 0), App.Vector(31, 27, 0)),
    Part.LineSegment(App.Vector(31, 27, 0), App.Vector(-19, 27, 0)),
], False)
sketch5.addConstraint([
    Sketcher.Constraint("Coincident", 0, 2, 1, 1),
    Sketcher.Constraint("Coincident", 1, 2, 2, 1),
    Sketcher.Constraint("Coincident", 2, 2, 3, 1),
    Sketcher.Constraint("Coincident", 3, 2, 0, 1),
    Sketcher.Constraint("Vertical", 0),
    Sketcher.Constraint("Horizontal", 1),
    Sketcher.Constraint("Vertical", 2),
    Sketcher.Constraint("Horizontal", 3),
    Sketcher.Constraint("DistanceX", 1, 1, 1, 2, Q("50 mm")),
    Sketcher.Constraint("DistanceY", 0, 2, 0, 1, Q("5 mm")),
    Sketcher.Constraint("DistanceY", -1, 1, 0, 2, Q("22.232491 mm")),
    Sketcher.Constraint("DistanceX", 0, 2, -1, 1, Q("19.073215 mm")),
])
pad5 = doc.addObject("PartDesign::Pad", "Pad004")
body.addObject(pad5)
pad5.Profile = sketch5
pad5.Length = 5

doc.recompute()
